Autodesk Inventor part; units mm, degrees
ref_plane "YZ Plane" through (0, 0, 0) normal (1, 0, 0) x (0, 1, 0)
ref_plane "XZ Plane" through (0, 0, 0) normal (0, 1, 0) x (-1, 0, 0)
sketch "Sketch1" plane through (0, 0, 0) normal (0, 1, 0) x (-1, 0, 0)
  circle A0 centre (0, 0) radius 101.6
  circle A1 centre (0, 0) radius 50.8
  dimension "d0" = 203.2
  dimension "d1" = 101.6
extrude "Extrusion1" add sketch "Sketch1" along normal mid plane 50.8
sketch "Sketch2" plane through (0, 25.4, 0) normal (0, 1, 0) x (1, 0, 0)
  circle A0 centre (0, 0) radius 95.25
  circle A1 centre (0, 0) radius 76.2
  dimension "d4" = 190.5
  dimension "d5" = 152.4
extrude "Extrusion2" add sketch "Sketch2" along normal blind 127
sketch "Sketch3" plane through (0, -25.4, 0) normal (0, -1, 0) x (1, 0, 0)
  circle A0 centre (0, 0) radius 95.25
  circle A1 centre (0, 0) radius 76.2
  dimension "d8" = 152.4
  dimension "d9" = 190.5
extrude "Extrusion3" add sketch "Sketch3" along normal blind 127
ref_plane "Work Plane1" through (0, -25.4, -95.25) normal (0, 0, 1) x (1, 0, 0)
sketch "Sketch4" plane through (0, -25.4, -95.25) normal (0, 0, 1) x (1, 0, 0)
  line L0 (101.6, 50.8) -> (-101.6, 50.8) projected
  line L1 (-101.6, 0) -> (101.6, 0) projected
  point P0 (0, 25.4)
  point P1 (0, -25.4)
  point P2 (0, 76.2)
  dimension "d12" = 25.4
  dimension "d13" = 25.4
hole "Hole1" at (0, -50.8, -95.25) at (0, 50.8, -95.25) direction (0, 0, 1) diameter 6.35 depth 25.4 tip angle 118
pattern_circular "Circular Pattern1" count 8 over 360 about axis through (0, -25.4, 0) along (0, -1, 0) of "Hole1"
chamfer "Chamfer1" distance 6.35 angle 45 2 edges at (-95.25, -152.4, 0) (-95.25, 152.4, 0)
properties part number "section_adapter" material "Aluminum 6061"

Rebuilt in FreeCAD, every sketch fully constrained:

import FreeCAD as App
import Part
import Sketcher

V = App.Vector
Q = App.Units.Quantity


def edges_at(feature, points):
    """Names of the edges that pass closest to the given points."""
    edges = feature.Shape.Edges
    near = lambda p: min(range(len(edges)), key=lambda i: edges[i].distToShape(Part.Vertex(*p))[0])
    return sorted({f"Edge{near(p) + 1}" for p in points})

doc = App.newDocument("Part")
body = doc.addObject("PartDesign::Body", "Body")

sketch1 = doc.addObject("Sketcher::SketchObject", "Sketch")
body.addObject(sketch1)
sketch1.AttachmentSupport = (doc.XZ_Plane, [""])
sketch1.MapMode = "FlatFace"
sketch1.addGeometry([
    Part.Circle(V(0, 0, 0), V(0, 0, 1), 102),
    Part.Circle(V(0, 0, 0), V(0, 0, 1), 51),
], False)
sketch1.addConstraint([
    Sketcher.Constraint("Coincident", 0, 3, -1, 1),
    Sketcher.Constraint("Coincident", 1, 3, -1, 1),
    Sketcher.Constraint("Diameter", 0, Q("8 in")),
    Sketcher.Constraint("Diameter", 1, Q("4 in")),
])
pad1 = doc.addObject("PartDesign::Pad", "Pad")
body.addObject(pad1)
pad1.Profile = sketch1
pad1.Length = Q("2 in")
pad1.Midplane = True

sketch2 = doc.addObject("Sketcher::SketchObject", "Sketch001")
body.addObject(sketch2)
sketch2.AttachmentSupport = (doc.XZ_Plane, [""])
sketch2.MapMode = "FlatFace"
sketch2.AttachmentOffset = App.Placement(V(0, 0, -1 * 25.4), App.Rotation())
sketch2.addGeometry([
    Part.Circle(V(0, 0, 0), V(0, 0, 1), 95),
    Part.Circle(V(0, 0, 0), V(0, 0, 1), 76),
], False)
sketch2.addConstraint([
    Sketcher.Constraint("Coincident", 0, 3, -1, 1),
    Sketcher.Constraint("Coincident", 1, 3, -1, 1),
    Sketcher.Constraint("Diameter", 1, Q("6 in")),
    Sketcher.Constraint("Diameter", 0, Q("7.5 in")),
])
pad2 = doc.addObject("PartDesign::Pad", "Pad001")
body.addObject(pad2)
pad2.Profile = sketch2
pad2.Length = Q("5 in")
pad2.Reversed = True

sketch3 = doc.addObject("Sketcher::SketchObject", "Sketch002")
body.addObject(sketch3)
sketch3.AttachmentSupport = (doc.XZ_Plane, [""])
sketch3.MapMode = "FlatFace"
sketch3.AttachmentOffset = App.Placement(V(0, 0, 1 * 25.4), App.Rotation())
sketch3.addGeometry([
    Part.Circle(V(0, 0, 0), V(0, 0, 1), 95),
    Part.Circle(V(0, 0, 0), V(0, 0, 1), 76),
], False)
sketch3.addConstraint([
    Sketcher.Constraint("Coincident", 0, 3, -1, 1),
    Sketcher.Constraint("Coincident", 1, 3, -1, 1),
    Sketcher.Constraint("Diameter", 1, Q("6 in")),
    Sketcher.Constraint("Diameter", 0, Q("7.5 in")),
])
pad3 = doc.addObject("PartDesign::Pad", "Pad002")
body.addObject(pad3)
pad3.Profile = sketch3
pad3.Length = Q("5 in")

sketch4 = doc.addObject("Sketcher::SketchObject", "Sketch003")
body.addObject(sketch4)
sketch4.AttachmentSupport = (doc.XY_Plane, [""])
sketch4.MapMode = "FlatFace"
sketch4.AttachmentOffset = App.Placement(V(0, 0, -3.75 * 25.4), App.Rotation())
sketch4.addGeometry([
    Part.Circle(V(0, -50.8, 0), V(0, 0, 1), 3.2),
    Part.Circle(V(0, 50.8, 0), V(0, 0, 1), 3.2),
], False)
sketch4.addConstraint([
    Sketcher.Constraint("Equal", 0, 1),
    Sketcher.Constraint("Symmetric", 0, 3, 1, 3, -1, 1),
    Sketcher.Constraint("PointOnObject", 0, 3, -2),
    Sketcher.Constraint("Diameter", 0, Q("0.25 in")),
    Sketcher.Constraint("DistanceY", 0, 3, -1, 1, Q("2 in")),
])
doc.recompute()
hole = doc.addObject("PartDesign::Hole", "Hole")
body.addObject(hole)
hole.Profile = sketch4
hole.ThreadType = "None"
hole.Diameter = Q("0.25 in")
hole.DepthType = "Dimension"
hole.Depth = Q("1 in")
hole.DrillPoint = "Angled"
hole.DrillPointAngle = 118
hole.Reversed = True
doc.recompute()

polarpattern = doc.addObject("PartDesign::PolarPattern", "PolarPattern")
body.addObject(polarpattern)
polarpattern.Originals = [hole]
polarpattern.Axis = (doc.Y_Axis, [""])
polarpattern.Angle = 360
polarpattern.Occurrences = 8
body.Tip = polarpattern
doc.recompute()

chamfer = doc.addObject("PartDesign::Chamfer", "Chamfer")
body.addObject(chamfer)
chamfer.Base = (polarpattern, edges_at(polarpattern, [(-95.25, -152.4, 0), (-95.25, 152.4, 0)]))
chamfer.Size = Q("0.25 in")

doc.recompute()
